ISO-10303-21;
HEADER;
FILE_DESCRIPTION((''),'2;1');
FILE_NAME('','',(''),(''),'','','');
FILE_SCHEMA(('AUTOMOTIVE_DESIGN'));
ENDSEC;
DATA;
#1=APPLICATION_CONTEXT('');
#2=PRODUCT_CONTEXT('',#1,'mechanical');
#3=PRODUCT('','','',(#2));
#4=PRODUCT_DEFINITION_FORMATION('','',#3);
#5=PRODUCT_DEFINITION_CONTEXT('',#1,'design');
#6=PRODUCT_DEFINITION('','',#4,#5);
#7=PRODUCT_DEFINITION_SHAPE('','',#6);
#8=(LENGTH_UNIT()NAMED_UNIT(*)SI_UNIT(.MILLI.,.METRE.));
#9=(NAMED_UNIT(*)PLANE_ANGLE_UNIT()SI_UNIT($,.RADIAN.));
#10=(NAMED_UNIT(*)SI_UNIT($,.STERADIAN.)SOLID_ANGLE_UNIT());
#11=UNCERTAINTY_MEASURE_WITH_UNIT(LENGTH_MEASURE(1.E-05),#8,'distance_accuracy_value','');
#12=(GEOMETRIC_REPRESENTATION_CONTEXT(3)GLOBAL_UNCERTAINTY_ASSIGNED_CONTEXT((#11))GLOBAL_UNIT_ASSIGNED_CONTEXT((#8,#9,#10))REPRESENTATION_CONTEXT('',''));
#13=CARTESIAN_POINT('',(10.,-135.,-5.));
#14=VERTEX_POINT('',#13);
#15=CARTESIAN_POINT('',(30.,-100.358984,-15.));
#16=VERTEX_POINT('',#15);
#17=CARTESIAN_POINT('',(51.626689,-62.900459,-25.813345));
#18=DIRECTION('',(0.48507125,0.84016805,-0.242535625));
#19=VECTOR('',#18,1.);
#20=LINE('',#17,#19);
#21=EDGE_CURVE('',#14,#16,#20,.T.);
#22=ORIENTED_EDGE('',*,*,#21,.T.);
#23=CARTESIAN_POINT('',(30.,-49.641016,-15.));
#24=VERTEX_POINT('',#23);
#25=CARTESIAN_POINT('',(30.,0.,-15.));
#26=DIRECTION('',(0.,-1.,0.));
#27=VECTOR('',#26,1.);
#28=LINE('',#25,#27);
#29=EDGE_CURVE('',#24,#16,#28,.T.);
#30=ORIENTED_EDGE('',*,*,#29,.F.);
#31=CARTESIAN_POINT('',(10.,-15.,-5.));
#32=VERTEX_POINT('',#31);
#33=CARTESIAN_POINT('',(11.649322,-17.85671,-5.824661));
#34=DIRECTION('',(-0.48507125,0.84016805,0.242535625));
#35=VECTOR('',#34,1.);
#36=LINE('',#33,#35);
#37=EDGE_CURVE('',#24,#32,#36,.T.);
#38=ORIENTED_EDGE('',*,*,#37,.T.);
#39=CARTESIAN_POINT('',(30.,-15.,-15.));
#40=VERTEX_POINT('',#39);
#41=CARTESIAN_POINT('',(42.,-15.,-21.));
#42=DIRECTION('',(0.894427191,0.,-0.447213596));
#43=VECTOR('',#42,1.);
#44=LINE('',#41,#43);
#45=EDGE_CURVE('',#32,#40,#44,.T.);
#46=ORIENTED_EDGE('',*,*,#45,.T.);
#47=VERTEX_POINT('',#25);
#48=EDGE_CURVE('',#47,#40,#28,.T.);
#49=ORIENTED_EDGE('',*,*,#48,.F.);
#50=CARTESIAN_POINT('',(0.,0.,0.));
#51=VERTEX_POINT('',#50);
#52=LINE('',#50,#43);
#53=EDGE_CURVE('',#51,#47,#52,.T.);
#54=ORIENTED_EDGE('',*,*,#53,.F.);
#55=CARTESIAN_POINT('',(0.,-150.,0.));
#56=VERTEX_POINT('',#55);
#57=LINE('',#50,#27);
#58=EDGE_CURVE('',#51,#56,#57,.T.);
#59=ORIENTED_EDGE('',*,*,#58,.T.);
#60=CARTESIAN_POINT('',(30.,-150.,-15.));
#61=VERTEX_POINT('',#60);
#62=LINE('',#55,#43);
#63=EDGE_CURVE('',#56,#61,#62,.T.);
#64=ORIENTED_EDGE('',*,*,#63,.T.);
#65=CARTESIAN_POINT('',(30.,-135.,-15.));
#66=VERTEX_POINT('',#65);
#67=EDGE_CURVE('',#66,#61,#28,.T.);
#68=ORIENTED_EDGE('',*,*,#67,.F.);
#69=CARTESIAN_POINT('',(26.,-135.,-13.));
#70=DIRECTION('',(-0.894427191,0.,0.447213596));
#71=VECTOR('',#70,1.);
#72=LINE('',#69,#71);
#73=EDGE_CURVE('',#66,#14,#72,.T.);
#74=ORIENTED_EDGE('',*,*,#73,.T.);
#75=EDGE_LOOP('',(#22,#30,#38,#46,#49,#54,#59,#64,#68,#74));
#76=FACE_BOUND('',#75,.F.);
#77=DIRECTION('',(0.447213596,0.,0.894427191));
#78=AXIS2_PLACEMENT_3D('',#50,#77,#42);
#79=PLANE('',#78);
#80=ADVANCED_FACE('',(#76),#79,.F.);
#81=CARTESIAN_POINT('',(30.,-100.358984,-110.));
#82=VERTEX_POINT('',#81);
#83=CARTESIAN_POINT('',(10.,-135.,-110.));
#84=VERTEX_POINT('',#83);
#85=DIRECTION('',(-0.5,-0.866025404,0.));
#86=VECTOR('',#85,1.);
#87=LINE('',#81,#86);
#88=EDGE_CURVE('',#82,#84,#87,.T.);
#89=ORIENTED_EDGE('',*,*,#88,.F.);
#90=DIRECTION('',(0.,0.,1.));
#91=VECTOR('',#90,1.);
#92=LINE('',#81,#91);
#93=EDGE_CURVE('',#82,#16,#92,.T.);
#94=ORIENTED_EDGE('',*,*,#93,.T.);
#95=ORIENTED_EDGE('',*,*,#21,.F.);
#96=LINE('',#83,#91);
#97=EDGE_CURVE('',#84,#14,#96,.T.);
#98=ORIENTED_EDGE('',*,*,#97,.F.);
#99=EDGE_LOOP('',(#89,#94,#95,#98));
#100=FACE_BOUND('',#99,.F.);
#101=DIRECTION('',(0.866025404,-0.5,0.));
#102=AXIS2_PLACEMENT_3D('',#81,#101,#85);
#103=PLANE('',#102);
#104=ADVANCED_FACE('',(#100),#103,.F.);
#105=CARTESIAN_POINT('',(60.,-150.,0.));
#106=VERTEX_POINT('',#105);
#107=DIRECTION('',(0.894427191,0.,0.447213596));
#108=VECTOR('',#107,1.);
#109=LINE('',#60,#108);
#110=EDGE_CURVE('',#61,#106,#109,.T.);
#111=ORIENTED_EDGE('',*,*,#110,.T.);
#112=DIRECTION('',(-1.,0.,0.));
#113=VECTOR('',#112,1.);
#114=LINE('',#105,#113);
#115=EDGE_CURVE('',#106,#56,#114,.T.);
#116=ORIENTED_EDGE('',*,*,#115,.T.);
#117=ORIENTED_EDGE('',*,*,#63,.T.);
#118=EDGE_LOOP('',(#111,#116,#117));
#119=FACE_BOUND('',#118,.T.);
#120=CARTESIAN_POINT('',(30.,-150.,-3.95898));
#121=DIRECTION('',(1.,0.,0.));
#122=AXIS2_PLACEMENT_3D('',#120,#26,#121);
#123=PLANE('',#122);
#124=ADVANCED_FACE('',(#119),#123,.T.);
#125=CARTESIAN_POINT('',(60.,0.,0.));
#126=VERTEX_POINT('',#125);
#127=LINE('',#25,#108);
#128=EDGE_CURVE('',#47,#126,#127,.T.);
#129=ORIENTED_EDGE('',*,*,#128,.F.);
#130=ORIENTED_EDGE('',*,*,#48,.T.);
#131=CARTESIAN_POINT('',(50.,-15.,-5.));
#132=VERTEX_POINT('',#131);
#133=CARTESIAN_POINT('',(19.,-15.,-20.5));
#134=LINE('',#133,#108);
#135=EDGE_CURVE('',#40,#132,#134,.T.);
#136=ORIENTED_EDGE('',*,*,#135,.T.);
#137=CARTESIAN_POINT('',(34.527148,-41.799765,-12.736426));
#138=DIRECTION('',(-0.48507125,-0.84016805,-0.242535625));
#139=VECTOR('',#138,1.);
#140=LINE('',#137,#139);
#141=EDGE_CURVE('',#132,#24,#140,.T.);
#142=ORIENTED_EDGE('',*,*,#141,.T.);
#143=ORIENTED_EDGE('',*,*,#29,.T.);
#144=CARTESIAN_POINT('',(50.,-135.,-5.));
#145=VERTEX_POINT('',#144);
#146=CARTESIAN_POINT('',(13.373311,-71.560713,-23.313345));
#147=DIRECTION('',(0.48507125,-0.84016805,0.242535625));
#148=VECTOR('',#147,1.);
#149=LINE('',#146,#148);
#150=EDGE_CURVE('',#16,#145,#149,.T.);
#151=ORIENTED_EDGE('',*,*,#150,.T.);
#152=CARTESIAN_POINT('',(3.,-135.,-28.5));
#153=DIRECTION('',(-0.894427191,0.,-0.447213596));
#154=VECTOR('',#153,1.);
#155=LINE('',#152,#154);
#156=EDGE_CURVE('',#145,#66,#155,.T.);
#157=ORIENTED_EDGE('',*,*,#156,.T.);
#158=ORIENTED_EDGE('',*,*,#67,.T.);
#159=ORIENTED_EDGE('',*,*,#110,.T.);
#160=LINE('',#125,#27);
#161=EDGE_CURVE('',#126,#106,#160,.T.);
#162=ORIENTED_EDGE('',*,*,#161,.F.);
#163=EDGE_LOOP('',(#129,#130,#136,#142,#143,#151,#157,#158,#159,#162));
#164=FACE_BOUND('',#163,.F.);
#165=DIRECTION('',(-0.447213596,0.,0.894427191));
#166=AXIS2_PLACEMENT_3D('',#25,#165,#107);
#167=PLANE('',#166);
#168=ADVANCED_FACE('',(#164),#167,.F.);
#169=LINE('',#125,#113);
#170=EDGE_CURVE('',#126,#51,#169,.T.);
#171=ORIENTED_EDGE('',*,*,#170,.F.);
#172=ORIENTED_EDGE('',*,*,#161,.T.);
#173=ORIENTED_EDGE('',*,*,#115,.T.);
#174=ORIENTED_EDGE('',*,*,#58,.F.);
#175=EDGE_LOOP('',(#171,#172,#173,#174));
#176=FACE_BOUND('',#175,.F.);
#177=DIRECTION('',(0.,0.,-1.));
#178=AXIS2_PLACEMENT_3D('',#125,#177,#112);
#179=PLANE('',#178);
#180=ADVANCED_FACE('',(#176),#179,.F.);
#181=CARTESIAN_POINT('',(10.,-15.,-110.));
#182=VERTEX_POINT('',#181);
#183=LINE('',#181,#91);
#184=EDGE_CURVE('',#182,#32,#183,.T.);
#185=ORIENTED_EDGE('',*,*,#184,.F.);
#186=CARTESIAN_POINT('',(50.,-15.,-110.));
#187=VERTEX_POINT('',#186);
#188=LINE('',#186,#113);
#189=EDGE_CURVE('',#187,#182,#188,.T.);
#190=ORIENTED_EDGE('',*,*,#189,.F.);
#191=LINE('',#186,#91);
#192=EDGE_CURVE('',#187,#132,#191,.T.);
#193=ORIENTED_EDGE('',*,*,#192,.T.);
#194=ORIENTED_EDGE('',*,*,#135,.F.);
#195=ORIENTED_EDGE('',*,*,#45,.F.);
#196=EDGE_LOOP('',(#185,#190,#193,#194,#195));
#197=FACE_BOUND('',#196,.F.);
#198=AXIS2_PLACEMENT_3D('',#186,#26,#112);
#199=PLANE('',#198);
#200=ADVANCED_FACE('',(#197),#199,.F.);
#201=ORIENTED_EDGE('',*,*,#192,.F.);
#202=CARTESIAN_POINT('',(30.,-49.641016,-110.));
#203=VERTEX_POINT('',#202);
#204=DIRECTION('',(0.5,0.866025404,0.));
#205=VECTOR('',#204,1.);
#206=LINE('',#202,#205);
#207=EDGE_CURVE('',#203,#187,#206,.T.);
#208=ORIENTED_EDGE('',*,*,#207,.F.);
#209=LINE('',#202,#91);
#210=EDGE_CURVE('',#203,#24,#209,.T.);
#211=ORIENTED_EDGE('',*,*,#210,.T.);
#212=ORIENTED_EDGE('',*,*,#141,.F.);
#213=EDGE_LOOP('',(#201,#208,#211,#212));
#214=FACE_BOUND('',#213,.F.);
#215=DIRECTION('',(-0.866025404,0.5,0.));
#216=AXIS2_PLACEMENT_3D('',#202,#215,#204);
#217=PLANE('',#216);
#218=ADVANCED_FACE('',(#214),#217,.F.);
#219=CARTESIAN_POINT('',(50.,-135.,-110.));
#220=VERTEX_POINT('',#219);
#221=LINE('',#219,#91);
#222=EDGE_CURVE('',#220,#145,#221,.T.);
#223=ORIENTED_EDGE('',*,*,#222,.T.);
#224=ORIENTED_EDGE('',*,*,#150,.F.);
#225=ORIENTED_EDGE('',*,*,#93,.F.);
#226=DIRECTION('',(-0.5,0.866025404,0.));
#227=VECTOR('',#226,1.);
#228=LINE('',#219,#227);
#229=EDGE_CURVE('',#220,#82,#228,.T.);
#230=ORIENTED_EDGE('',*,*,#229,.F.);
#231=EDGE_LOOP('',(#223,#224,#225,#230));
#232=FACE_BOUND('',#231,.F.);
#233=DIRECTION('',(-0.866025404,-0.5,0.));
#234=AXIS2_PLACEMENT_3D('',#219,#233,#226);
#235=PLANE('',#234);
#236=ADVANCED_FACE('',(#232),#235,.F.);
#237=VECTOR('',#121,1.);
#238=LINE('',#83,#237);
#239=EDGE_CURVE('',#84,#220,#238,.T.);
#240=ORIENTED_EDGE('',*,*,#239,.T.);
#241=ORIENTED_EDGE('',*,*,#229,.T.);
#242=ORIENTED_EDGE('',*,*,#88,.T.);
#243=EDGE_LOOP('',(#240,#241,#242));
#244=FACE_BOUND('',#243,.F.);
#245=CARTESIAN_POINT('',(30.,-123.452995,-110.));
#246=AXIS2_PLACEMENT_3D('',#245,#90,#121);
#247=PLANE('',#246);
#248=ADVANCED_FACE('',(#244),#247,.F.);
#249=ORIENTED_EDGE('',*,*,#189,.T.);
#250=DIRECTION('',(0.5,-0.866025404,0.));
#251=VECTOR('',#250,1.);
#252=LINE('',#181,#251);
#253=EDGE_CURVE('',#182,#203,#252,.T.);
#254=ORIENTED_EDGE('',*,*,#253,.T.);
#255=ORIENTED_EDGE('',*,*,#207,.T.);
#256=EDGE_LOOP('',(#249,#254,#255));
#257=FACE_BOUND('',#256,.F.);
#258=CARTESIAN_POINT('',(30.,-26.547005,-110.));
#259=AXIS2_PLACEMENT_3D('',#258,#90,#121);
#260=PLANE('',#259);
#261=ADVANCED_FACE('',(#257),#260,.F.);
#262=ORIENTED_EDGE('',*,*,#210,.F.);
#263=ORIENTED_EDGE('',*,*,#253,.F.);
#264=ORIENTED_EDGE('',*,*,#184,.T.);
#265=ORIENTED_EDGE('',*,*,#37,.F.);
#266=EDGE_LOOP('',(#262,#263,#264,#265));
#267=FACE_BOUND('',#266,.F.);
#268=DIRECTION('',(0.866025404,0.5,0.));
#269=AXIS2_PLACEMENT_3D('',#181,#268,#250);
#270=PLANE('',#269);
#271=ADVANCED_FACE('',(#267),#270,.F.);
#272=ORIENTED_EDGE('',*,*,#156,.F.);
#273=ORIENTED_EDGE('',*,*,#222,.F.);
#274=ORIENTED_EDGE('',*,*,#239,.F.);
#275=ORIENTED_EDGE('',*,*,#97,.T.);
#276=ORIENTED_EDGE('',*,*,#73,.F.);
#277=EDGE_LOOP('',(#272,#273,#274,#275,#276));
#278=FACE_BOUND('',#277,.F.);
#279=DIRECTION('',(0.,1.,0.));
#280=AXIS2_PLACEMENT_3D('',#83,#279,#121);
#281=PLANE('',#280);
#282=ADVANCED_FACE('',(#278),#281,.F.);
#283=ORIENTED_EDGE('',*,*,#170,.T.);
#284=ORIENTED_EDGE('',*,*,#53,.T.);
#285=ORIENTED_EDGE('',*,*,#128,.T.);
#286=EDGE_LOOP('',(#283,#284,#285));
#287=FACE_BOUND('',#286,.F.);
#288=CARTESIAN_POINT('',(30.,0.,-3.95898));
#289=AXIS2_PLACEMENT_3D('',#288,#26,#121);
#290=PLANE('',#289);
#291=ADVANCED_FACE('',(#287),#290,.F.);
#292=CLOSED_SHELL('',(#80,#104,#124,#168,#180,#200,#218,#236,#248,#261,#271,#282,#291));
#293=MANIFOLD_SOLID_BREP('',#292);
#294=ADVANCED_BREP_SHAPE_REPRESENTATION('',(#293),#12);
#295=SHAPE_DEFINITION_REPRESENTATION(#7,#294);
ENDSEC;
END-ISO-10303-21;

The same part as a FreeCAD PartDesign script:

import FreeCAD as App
import Part
import Sketcher

V = App.Vector
Q = App.Units.Quantity


def add_polygon(sketch, points):
    """Adds a closed chain of lines whose ends are joined by coincident constraints."""
    first, n = sketch.GeometryCount, len(points)
    for a, b in zip(points, points[1:] + points[:1]):
        sketch.addGeometry(Part.LineSegment(App.Vector(*a, 0), App.Vector(*b, 0)), False)
    for i in range(n):
        sketch.addConstraint(Sketcher.Constraint("Coincident", first + i, 2, first + (i + 1) % n, 1))

doc = App.newDocument("Part")
body = doc.addObject("PartDesign::Body", "Body")

sketch1 = body.newObject("Sketcher::SketchObject", "Sketch")
sketch1.AttachmentSupport = (doc.getObject("XZ_Plane"), [""])
sketch1.MapMode = "FlatFace"
add_polygon(sketch1, [(60, 0), (0, 0), (30, -15)])
sketch1.addConstraint([
    Sketcher.Constraint("Horizontal", 0),
    Sketcher.Constraint("Coincident", 0, 2, -1, 1),
    Sketcher.Constraint("Equal", 1, 2),
    Sketcher.Constraint("DistanceX", 0, 2, 0, 1, 60.0),
    Sketcher.Constraint("DistanceY", 1, 2, -1, 1, 15.0),
])
pad1 = body.newObject("PartDesign::Pad", "Pad")
pad1.Profile = sketch1
pad1.Length = 150

sketch2 = body.newObject("Sketcher::SketchObject", "Sketch001")
sketch2.AttachmentSupport = (doc.getObject("XY_Plane"), [""])
sketch2.MapMode = "FlatFace"
sketch2.AttachmentOffset = App.Placement(V(0, 0, -110), App.Rotation())
add_polygon(sketch2, [(30, -100), (10, -135), (50, -135)])
add_polygon(sketch2, [(30, -50), (50, -15), (10, -15)])
sketch2.addConstraint([
    Sketcher.Constraint("Horizontal", 1),
    Sketcher.Constraint("Horizontal", 4),
    Sketcher.Constraint("Parallel", 0, 3),
    Sketcher.Constraint("Parallel", 2, 5),
    Sketcher.Constraint("Vertical", 1, 2, 3, 2),
    Sketcher.Constraint("Vertical", 0, 2, 4, 2),
    Sketcher.Constraint("Vertical", 2, 2, 5, 2),
    Sketcher.Constraint("DistanceX", 1, 1, 1, 2, 40.0),
    Sketcher.Constraint("Angle", 0, Q("-120 deg")),
    Sketcher.Constraint("DistanceX", -1, 1, 0, 2, 10.0),
    Sketcher.Constraint("DistanceY", 0, 2, -1, 1, 135.0),
    Sketcher.Constraint("DistanceY", 3, 2, -1, 1, 15.0),
])
pad2 = body.newObject("PartDesign::Pad", "Pad001")
pad2.Profile = sketch2
pad2.Length = 110

doc.recompute()
